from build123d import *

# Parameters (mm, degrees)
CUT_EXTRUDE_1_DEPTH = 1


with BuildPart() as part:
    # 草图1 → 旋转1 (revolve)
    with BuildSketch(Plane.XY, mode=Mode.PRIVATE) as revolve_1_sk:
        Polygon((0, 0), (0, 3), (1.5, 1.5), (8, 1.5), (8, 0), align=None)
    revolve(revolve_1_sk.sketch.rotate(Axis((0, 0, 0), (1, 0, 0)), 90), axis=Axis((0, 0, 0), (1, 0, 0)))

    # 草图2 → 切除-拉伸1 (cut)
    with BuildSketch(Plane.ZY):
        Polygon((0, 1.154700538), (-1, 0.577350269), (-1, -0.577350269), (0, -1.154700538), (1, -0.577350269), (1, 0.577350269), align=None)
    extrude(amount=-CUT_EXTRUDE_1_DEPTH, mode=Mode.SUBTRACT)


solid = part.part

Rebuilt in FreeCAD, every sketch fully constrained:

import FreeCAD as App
import Part
import Sketcher
from FreeCAD import Vector
Q = App.Units.Quantity


def add_polygon(sketch, points):
    """Adds a closed chain of lines whose ends are joined by coincident constraints."""
    first, n = sketch.GeometryCount, len(points)
    for a, b in zip(points, points[1:] + points[:1]):
        sketch.addGeometry(Part.LineSegment(App.Vector(*a, 0), App.Vector(*b, 0)), False)
    for i in range(n):
        sketch.addConstraint(Sketcher.Constraint("Coincident", first + i, 2, first + (i + 1) % n, 1))

doc = App.newDocument("Part")
body = doc.addObject("PartDesign::Body", "Body")

# Sketch on XY plane
sketch1 = doc.addObject("Sketcher::SketchObject", "Sketch")
body.addObject(sketch1)
sketch1.AttachmentSupport = (doc.XY_Plane, [""])
sketch1.MapMode = "FlatFace"
add_polygon(sketch1, [(0, 3), (0, 0), (8, 0), (8, 1.5), (1.5, 1.5)])  # lines 0-4
sketch1.addConstraint([
    Sketcher.Constraint("Vertical", 0),
    Sketcher.Constraint("Horizontal", 1),
    Sketcher.Constraint("Vertical", 2),
    Sketcher.Constraint("Horizontal", 3),
    Sketcher.Constraint("Coincident", 0, 2, -1, 1),
    Sketcher.Constraint("DistanceX", 1, 1, 1, 2, 8.0),
    Sketcher.Constraint("DistanceY", 0, 2, 0, 1, 3.0),
    Sketcher.Constraint("Angle", 4, Q("135 deg")),
    Sketcher.Constraint("DistanceX", 3, 2, 3, 1, 6.5),
])
revolution = doc.addObject("PartDesign::Revolution", "Revolution")
body.addObject(revolution)
revolution.Profile = sketch1
revolution.ReferenceAxis = (sketch1, ["H_Axis"])
revolution.Angle = 360

# Sketch on YZ plane
sketch2 = doc.addObject("Sketcher::SketchObject", "Sketch001")
body.addObject(sketch2)
sketch2.AttachmentSupport = (doc.YZ_Plane, [""])
sketch2.MapMode = "FlatFace"
add_polygon(sketch2, [(1.154701, 0), (0.57735, -1), (-0.57735, -1), (-1.154701, 0), (-0.57735, 1), (0.57735, 1)])  # lines 0-5
sketch2.addConstraint([
    Sketcher.Constraint("Horizontal", 1),
    Sketcher.Constraint("Horizontal", 4),
    Sketcher.Constraint("Symmetric", 0, 2, 3, 2, -1, 1),
    Sketcher.Constraint("Symmetric", 2, 2, 5, 2, -1, 1),
    Sketcher.Constraint("PointOnObject", 2, 2, -1),
    Sketcher.Constraint("Parallel", 2, 5),
    Sketcher.Constraint("Vertical", 1, 2, 3, 2),
    Sketcher.Constraint("Angle", 0, Q("-120 deg")),
    Sketcher.Constraint("DistanceY", 0, 2, -1, 1, 1.0),
    Sketcher.Constraint("DistanceX", 1, 2, 1, 1, 1.154701),
])
pocket1 = doc.addObject("PartDesign::Pocket", "Pocket")
body.addObject(pocket1)
pocket1.Profile = sketch2
pocket1.Length = 1
pocket1.Reversed = True

doc.recompute()
